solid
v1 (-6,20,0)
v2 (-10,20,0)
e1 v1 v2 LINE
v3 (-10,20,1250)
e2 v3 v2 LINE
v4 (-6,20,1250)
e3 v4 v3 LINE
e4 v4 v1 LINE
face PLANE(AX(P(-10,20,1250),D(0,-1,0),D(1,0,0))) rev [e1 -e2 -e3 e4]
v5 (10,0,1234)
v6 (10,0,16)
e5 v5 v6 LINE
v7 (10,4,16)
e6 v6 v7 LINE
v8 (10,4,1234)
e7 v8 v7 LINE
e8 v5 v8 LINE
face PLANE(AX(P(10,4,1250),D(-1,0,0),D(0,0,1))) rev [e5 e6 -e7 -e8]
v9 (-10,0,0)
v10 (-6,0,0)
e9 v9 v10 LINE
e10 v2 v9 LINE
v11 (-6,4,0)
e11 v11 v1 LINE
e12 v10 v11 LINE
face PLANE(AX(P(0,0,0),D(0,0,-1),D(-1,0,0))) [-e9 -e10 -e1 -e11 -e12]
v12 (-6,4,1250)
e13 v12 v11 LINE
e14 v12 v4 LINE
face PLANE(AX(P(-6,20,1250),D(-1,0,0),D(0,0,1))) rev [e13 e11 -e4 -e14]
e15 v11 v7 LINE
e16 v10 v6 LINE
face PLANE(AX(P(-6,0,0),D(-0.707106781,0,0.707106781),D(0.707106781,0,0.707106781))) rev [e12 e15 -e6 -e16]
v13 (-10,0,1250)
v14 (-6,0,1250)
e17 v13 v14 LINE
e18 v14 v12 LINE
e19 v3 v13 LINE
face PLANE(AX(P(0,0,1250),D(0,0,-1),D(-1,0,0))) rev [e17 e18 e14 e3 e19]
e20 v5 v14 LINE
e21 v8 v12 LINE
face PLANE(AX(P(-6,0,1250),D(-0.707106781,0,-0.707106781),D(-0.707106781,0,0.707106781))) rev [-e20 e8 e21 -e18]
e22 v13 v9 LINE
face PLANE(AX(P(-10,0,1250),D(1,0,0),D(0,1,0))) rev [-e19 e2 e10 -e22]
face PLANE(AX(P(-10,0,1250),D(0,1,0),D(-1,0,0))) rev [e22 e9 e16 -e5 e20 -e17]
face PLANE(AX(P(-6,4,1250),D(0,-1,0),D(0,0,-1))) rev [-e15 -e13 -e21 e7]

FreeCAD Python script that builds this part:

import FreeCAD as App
import Part
import Sketcher
from FreeCAD import Vector
Q = App.Units.Quantity


def add_polygon(sketch, points):
    """Adds a closed chain of lines whose ends are joined by coincident constraints."""
    first, n = sketch.GeometryCount, len(points)
    for a, b in zip(points, points[1:] + points[:1]):
        sketch.addGeometry(Part.LineSegment(App.Vector(*a, 0), App.Vector(*b, 0)), False)
    for i in range(n):
        sketch.addConstraint(Sketcher.Constraint("Coincident", first + i, 2, first + (i + 1) % n, 1))

doc = App.newDocument("Part")
body = doc.addObject("PartDesign::Body", "Body")

# Sketch on XY plane
sketch1 = doc.addObject("Sketcher::SketchObject", "Sketch")
body.addObject(sketch1)
sketch1.AttachmentSupport = (doc.XY_Plane, [""])
sketch1.MapMode = "FlatFace"
add_polygon(sketch1, [(-10, 0), (10, 0), (10, 4), (-6, 4), (-6, 20), (-10, 20)])  # lines 0-5
sketch1.addConstraint([
    Sketcher.Constraint("Horizontal", 0),
    Sketcher.Constraint("Vertical", 1),
    Sketcher.Constraint("Horizontal", 2),
    Sketcher.Constraint("Vertical", 3),
    Sketcher.Constraint("Horizontal", 4),
    Sketcher.Constraint("Vertical", 5),
    Sketcher.Constraint("Symmetric", 0, 2, 5, 2, -1, 1),
    Sketcher.Constraint("Equal", 4, 1),
    Sketcher.Constraint("Equal", 2, 3),
    Sketcher.Constraint("DistanceX", 0, 1, 0, 2, Q("20 mm")),
    Sketcher.Constraint("DistanceX", 2, 2, 2, 1, Q("16 mm")),
])
pad1 = doc.addObject("PartDesign::Pad", "Pad")
body.addObject(pad1)
pad1.Profile = sketch1
pad1.Length = 1250

# Sketch on XZ plane
sketch2 = doc.addObject("Sketcher::SketchObject", "Sketch001")
body.addObject(sketch2)
sketch2.AttachmentSupport = (doc.XZ_Plane, [""])
sketch2.MapMode = "FlatFace"
sketch2.AttachmentOffset = App.Placement(Vector(0, 0, -4), App.Rotation())
add_polygon(sketch2, [(-6, 0), (10, 16), (10, 0)])  # lines 0-2
sketch2.addConstraint([
    Sketcher.Constraint("Vertical", 1),
    Sketcher.Constraint("Horizontal", 2),
    Sketcher.Constraint("PointOnObject", 1, 2, -1),
    Sketcher.Constraint("Equal", 2, 1),
    Sketcher.Constraint("DistanceX", 2, 2, 2, 1, Q("16 mm")),
    Sketcher.Constraint("DistanceX", -1, 1, 0, 2, Q("10 mm")),
])
pocket1 = doc.addObject("PartDesign::Pocket", "Pocket")
body.addObject(pocket1)
pocket1.Profile = sketch2
pocket1.Type = "ThroughAll"
pocket1.Reversed = True

# Sketch on XZ plane
sketch3 = doc.addObject("Sketcher::SketchObject", "Sketch002")
body.addObject(sketch3)
sketch3.AttachmentSupport = (doc.XZ_Plane, [""])
sketch3.MapMode = "FlatFace"
sketch3.AttachmentOffset = App.Placement(Vector(0, 0, -4), App.Rotation())
add_polygon(sketch3, [(10, 1234), (-6, 1250), (10, 1250)])  # lines 0-2
sketch3.addConstraint([
    Sketcher.Constraint("Horizontal", 1),
    Sketcher.Constraint("Vertical", 2),
    Sketcher.Constraint("Equal", 1, 2),
    Sketcher.Constraint("DistanceX", 1, 1, 1, 2, Q("16 mm")),
    Sketcher.Constraint("DistanceX", 0, 2, -1, 1, Q("6 mm")),
    Sketcher.Constraint("DistanceY", -1, 1, 0, 2, Q("1250 mm")),
])
pocket2 = doc.addObject("PartDesign::Pocket", "Pocket001")
body.addObject(pocket2)
pocket2.Profile = sketch3
pocket2.Type = "ThroughAll"
pocket2.Reversed = True

doc.recompute()
